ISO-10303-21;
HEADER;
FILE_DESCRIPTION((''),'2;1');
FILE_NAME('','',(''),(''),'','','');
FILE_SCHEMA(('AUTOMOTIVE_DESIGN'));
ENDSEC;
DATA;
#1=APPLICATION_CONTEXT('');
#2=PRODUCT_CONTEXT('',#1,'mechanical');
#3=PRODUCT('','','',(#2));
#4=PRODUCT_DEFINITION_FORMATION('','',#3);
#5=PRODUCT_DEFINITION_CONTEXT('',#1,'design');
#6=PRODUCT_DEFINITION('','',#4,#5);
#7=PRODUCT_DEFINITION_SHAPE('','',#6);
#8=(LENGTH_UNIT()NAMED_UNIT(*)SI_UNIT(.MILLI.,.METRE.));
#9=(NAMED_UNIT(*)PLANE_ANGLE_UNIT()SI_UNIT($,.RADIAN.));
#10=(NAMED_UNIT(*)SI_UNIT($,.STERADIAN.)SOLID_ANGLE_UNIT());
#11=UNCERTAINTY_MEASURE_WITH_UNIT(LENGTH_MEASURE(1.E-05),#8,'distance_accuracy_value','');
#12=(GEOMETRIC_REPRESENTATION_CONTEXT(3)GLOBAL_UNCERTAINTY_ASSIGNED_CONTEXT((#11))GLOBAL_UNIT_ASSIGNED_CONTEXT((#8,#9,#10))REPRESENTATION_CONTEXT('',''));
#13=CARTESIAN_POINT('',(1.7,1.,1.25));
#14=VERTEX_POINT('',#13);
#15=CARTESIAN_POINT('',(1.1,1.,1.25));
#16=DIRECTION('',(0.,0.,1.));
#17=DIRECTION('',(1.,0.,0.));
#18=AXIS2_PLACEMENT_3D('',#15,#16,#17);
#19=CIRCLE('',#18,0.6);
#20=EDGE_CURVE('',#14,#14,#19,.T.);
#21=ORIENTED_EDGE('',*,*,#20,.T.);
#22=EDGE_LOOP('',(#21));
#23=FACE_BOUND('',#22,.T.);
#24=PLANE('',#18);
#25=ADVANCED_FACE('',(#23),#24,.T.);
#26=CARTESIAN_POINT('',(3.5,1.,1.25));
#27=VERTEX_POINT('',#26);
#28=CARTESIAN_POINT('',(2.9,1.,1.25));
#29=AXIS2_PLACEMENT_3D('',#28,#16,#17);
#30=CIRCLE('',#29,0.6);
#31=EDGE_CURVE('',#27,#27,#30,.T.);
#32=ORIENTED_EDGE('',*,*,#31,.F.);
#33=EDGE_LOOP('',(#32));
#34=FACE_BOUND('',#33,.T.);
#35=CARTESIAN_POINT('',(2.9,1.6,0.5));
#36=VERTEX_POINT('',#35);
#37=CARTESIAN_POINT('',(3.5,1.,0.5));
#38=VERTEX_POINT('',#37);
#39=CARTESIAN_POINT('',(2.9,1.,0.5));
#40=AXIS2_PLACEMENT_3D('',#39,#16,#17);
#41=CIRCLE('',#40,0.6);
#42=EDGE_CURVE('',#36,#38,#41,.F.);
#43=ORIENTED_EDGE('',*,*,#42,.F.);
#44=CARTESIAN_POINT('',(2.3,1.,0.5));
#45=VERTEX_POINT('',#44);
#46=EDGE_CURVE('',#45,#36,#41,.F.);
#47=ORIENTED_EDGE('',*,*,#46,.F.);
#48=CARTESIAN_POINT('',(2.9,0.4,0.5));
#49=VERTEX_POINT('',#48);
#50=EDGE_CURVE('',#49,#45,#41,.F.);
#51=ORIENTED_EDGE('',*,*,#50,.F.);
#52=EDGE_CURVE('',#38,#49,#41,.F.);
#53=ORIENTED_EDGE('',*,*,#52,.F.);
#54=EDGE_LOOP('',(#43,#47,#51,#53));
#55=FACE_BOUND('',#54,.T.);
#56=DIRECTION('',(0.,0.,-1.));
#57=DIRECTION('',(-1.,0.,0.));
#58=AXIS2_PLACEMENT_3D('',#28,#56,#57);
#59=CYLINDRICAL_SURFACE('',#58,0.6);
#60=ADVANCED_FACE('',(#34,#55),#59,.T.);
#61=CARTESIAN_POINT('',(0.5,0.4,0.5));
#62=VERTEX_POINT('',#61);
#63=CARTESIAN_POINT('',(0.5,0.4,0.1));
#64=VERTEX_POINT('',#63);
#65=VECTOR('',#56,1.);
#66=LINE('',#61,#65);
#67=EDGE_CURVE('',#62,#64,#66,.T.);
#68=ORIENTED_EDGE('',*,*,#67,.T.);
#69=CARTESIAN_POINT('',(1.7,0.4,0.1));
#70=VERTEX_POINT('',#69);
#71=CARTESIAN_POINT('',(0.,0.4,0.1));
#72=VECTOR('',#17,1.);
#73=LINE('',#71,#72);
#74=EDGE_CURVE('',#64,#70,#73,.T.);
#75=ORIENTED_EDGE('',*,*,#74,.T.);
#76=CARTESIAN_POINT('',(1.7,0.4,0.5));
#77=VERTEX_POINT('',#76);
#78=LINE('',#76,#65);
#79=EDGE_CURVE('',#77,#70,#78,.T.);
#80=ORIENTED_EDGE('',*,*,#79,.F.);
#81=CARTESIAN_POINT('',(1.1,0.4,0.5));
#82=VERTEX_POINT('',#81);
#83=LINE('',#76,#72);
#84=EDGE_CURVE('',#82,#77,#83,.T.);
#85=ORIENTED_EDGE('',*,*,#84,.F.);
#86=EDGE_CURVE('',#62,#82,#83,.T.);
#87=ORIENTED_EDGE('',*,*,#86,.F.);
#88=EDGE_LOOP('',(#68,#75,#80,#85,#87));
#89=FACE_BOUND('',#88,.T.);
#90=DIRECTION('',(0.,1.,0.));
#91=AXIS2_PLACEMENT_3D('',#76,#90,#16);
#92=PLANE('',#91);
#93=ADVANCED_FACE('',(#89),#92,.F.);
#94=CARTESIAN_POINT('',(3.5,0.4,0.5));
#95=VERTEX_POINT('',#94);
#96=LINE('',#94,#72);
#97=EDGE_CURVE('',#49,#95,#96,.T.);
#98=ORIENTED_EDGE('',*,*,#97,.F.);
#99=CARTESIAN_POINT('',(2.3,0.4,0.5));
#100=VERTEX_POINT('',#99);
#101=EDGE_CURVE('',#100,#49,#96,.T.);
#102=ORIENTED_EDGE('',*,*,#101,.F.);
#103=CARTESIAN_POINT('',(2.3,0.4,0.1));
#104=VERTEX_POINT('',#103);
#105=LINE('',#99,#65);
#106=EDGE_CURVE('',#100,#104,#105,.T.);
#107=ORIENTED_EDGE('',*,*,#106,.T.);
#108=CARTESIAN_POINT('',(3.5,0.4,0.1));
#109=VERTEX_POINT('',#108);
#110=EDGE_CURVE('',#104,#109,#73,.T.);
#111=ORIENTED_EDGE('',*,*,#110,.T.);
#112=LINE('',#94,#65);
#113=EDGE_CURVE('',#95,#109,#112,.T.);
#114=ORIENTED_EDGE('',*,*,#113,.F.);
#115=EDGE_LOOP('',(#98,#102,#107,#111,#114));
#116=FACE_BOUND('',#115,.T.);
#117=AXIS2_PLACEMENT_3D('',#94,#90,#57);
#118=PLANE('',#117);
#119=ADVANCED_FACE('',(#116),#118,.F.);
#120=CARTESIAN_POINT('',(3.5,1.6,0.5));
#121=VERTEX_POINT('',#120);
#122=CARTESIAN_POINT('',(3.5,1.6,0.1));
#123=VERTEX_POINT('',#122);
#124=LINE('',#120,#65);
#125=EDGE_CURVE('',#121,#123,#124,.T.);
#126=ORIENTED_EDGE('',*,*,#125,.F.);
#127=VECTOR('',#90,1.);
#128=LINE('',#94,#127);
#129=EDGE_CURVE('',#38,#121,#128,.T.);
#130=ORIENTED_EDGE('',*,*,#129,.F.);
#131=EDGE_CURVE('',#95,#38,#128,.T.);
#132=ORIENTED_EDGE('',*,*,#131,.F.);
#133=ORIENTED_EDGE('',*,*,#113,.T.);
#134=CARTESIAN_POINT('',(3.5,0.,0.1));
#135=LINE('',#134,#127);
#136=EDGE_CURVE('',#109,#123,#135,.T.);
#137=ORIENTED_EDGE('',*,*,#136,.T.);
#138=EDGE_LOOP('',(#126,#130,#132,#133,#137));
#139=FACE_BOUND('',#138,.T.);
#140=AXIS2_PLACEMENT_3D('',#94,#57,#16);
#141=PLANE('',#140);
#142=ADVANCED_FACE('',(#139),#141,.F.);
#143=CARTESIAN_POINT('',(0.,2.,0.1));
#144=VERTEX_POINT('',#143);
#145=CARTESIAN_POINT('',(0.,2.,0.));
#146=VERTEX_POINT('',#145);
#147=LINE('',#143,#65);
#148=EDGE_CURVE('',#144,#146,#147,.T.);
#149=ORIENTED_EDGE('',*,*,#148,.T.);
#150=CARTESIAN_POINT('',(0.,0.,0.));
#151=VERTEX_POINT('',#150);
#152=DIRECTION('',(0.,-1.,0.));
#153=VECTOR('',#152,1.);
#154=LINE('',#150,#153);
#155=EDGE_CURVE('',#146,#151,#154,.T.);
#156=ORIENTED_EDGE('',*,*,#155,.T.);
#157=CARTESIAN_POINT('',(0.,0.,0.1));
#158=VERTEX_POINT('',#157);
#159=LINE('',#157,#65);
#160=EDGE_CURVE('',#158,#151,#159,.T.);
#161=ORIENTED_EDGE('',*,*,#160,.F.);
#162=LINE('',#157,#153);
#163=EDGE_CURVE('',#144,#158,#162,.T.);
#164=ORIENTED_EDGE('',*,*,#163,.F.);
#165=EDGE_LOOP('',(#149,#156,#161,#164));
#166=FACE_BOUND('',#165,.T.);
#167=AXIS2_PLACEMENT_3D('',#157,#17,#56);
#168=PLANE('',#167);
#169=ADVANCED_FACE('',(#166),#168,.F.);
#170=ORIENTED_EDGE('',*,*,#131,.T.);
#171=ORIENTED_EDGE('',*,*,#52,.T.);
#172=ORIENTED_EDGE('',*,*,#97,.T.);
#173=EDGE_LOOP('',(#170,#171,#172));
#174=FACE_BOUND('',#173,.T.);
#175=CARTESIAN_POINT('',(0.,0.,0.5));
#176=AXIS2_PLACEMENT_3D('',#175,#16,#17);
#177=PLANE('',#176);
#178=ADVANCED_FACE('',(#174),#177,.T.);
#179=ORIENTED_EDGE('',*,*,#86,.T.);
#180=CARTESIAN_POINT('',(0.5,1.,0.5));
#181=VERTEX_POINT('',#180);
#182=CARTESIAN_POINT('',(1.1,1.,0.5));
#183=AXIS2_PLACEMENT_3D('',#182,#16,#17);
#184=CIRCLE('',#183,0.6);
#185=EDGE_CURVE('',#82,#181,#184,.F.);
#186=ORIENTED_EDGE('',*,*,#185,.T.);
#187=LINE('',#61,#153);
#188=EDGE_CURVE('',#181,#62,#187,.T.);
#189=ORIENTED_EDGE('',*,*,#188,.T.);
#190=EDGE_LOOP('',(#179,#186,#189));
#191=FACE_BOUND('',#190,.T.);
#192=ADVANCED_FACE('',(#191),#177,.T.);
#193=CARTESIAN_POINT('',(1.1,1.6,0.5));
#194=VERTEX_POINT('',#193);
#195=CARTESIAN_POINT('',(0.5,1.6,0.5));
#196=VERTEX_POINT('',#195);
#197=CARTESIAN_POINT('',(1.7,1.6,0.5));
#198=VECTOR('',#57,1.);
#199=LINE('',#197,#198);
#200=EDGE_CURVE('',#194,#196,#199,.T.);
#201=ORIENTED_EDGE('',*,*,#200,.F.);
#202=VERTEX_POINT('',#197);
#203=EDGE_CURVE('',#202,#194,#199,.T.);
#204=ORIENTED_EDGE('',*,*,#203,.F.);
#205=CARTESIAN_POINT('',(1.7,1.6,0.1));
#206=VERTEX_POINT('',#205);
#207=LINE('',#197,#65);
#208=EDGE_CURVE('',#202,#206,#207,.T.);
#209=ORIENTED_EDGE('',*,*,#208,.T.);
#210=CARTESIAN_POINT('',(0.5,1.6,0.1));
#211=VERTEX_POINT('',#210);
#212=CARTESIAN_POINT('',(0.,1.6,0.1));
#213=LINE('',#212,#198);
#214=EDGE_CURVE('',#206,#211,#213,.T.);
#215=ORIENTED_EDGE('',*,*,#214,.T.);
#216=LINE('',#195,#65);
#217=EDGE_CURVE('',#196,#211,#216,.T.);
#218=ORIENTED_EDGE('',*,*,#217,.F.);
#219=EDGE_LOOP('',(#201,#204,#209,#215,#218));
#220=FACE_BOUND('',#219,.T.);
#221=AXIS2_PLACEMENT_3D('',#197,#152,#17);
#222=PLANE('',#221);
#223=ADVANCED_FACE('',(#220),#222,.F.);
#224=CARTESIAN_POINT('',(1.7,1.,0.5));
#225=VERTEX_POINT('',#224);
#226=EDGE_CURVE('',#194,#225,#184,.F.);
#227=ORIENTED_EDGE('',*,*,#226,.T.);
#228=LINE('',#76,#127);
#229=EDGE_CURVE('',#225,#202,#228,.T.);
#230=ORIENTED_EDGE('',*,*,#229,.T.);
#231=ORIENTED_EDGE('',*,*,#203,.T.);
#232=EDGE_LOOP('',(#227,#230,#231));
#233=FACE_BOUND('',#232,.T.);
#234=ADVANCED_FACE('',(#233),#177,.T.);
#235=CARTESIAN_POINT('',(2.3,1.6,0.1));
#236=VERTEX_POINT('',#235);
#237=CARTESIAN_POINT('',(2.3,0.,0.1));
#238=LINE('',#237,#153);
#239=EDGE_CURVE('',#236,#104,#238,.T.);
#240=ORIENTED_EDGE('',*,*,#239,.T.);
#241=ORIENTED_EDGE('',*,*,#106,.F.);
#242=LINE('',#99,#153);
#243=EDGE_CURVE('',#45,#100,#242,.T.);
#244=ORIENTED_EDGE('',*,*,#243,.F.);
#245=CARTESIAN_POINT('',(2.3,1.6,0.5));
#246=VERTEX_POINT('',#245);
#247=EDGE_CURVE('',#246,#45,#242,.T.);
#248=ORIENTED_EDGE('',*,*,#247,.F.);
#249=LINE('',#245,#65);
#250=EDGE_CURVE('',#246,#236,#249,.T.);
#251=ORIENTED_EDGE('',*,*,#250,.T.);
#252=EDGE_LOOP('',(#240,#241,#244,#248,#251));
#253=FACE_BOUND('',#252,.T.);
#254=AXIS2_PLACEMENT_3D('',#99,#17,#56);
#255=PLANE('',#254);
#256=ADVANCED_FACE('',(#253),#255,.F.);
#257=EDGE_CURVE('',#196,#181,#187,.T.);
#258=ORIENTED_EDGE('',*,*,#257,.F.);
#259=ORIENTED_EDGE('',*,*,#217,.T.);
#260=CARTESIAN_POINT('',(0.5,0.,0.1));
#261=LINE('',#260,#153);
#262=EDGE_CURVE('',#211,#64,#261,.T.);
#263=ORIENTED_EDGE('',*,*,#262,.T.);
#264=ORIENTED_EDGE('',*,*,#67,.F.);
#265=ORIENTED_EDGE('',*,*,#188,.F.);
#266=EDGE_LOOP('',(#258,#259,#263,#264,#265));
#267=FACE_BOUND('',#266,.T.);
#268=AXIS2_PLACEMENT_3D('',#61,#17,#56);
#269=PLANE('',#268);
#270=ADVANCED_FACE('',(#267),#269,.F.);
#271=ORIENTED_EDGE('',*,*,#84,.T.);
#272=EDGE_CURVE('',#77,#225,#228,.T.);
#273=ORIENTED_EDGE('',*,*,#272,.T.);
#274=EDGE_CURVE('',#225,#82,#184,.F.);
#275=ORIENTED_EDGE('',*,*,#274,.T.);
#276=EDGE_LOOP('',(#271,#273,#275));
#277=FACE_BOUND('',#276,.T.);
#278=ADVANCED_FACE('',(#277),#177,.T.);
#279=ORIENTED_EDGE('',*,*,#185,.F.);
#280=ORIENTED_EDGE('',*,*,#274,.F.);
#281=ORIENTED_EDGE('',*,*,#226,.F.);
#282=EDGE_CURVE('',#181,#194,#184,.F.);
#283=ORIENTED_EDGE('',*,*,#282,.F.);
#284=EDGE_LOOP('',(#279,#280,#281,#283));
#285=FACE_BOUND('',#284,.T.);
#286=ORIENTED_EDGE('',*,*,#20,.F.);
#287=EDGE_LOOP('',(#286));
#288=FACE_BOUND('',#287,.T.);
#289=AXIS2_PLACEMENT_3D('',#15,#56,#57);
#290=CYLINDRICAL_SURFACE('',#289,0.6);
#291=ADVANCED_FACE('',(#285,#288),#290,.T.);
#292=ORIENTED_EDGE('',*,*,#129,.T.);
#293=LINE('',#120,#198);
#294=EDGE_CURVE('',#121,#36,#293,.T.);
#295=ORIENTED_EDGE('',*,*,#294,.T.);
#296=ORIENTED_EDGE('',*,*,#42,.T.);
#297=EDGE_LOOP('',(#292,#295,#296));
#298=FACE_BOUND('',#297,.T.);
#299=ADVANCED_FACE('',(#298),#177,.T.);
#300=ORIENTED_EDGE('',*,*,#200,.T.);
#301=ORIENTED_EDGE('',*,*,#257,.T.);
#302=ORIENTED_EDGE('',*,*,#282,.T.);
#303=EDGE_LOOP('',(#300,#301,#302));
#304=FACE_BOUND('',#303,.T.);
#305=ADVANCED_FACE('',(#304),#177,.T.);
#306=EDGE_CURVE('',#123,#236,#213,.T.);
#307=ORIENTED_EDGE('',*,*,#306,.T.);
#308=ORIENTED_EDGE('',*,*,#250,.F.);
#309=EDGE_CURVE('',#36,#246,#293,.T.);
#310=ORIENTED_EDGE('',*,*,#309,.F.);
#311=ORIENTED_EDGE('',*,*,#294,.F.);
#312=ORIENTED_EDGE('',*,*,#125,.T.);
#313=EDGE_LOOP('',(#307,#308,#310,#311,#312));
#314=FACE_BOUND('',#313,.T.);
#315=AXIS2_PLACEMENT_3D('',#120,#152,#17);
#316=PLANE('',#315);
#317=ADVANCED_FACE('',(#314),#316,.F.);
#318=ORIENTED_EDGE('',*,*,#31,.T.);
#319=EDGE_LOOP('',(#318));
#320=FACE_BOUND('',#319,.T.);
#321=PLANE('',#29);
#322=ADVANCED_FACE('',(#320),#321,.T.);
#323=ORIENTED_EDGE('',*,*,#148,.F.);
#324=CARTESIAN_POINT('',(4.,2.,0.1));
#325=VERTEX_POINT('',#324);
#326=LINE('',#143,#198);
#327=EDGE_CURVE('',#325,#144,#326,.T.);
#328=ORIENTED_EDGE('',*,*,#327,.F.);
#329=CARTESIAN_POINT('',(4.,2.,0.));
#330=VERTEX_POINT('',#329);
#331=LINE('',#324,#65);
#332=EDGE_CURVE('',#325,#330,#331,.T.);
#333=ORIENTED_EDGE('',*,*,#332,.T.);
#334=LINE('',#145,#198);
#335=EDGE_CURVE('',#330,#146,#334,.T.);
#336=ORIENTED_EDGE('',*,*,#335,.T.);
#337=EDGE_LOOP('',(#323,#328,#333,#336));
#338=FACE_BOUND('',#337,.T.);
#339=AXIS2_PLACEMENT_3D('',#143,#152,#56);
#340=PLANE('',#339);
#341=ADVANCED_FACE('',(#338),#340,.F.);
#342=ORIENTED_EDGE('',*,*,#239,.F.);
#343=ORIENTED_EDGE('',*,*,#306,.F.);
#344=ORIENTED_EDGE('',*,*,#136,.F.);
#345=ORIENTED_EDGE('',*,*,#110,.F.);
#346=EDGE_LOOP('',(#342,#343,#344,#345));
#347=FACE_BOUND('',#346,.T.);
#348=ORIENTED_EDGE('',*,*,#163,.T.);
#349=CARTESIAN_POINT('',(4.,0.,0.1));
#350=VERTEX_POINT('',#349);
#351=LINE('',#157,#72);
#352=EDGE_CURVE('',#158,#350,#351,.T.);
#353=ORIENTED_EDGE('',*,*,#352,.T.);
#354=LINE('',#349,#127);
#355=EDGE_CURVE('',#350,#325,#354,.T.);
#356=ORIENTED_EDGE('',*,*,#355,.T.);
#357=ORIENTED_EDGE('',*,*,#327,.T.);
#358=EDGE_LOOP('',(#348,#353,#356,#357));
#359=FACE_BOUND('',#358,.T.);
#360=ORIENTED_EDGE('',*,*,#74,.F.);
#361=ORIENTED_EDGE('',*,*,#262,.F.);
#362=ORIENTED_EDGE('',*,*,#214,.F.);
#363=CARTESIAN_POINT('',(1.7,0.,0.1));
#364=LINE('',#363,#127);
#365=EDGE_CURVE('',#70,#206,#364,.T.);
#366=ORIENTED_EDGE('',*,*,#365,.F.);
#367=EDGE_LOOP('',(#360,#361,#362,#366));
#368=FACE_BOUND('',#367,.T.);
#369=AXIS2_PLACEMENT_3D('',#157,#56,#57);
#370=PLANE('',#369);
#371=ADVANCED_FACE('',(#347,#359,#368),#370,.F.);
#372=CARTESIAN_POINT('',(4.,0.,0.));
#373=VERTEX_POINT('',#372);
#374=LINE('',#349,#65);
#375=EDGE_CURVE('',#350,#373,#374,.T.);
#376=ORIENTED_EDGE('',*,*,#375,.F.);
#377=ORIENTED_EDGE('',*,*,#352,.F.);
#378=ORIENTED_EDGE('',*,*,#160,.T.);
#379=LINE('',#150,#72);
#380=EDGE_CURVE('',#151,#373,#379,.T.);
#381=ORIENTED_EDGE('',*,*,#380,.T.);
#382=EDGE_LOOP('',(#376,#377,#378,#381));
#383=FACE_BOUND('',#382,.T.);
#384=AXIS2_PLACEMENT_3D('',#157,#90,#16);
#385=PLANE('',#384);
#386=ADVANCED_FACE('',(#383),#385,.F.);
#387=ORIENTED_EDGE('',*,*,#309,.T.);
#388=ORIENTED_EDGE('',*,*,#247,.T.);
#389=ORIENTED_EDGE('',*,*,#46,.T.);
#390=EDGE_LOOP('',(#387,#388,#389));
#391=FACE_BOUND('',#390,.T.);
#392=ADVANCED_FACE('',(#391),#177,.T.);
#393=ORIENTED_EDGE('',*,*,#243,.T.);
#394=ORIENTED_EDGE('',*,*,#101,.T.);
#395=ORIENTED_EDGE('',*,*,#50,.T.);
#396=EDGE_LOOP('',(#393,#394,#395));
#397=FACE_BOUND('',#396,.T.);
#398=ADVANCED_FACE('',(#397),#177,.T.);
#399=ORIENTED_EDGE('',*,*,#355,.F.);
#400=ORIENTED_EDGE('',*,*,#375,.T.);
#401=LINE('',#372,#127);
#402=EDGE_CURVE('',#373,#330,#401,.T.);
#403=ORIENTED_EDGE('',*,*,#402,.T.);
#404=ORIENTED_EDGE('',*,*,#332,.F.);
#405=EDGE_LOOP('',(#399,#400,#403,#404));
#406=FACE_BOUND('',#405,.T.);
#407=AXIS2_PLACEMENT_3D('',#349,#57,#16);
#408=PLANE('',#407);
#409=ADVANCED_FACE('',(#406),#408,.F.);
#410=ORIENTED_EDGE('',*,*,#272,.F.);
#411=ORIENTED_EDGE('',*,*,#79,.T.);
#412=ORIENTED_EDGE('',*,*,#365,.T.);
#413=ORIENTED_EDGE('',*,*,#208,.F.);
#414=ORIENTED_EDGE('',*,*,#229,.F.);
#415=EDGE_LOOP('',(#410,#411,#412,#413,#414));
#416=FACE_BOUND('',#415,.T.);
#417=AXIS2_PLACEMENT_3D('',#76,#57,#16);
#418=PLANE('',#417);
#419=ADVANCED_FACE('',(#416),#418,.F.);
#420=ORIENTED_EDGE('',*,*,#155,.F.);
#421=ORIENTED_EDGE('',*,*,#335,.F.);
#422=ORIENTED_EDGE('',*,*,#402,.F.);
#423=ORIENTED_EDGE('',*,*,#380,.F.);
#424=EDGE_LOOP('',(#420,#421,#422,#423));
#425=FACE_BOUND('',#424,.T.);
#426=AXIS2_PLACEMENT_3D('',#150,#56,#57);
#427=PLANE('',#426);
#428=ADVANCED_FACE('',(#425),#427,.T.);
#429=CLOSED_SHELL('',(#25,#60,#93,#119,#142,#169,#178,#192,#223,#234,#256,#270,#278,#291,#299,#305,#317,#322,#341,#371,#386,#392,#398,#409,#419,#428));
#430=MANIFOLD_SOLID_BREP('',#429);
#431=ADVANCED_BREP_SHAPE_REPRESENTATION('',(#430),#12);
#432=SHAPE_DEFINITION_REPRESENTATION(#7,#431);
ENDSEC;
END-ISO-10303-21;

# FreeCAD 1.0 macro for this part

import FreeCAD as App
import Part
import Sketcher
from FreeCAD import Vector
Q = App.Units.Quantity

doc = App.newDocument("Part")
body = doc.addObject("PartDesign::Body", "Body")

sketch1 = body.newObject("Sketcher::SketchObject", "Sketch")
sketch1.AttachmentSupport = (doc.getObject("XY_Plane"), [""])
sketch1.MapMode = "FlatFace"
sketch1.addGeometry(Part.LineSegment(Vector(0, 2, 0), Vector(0, 0, 0)), False)
sketch1.addGeometry(Part.LineSegment(Vector(0, 0, 0), Vector(4, 0, 0)), False)
sketch1.addGeometry(Part.LineSegment(Vector(4, 0, 0), Vector(4, 2, 0)), False)
sketch1.addGeometry(Part.LineSegment(Vector(4, 2, 0), Vector(0, 2, 0)), False)
sketch1.addConstraint(Sketcher.Constraint("Coincident", 0, 2, 1, 1))
sketch1.addConstraint(Sketcher.Constraint("Coincident", 1, 2, 2, 1))
sketch1.addConstraint(Sketcher.Constraint("Coincident", 2, 2, 3, 1))
sketch1.addConstraint(Sketcher.Constraint("Coincident", 3, 2, 0, 1))
sketch1.addConstraint(Sketcher.Constraint("Vertical", 0))
sketch1.addConstraint(Sketcher.Constraint("Horizontal", 1))
sketch1.addConstraint(Sketcher.Constraint("Vertical", 2))
sketch1.addConstraint(Sketcher.Constraint("Horizontal", 3))
sketch1.addConstraint(Sketcher.Constraint("Coincident", 0, 2, -1, 1))
sketch1.addConstraint(Sketcher.Constraint("DistanceX", 1, 1, 1, 2, Q("4 mm")))
sketch1.addConstraint(Sketcher.Constraint("DistanceY", 0, 2, 0, 1, Q("2 mm")))
pad1 = body.newObject("PartDesign::Pad", "Pad")
pad1.Profile = sketch1
pad1.Length = 0.1

sketch2 = body.newObject("Sketcher::SketchObject", "Sketch001")
sketch2.AttachmentSupport = (doc.getObject("XY_Plane"), [""])
sketch2.MapMode = "FlatFace"
sketch2.addGeometry(Part.LineSegment(Vector(0.5, 1.6, 0), Vector(0.5, 0.4, 0)), False)
sketch2.addGeometry(Part.LineSegment(Vector(0.5, 0.4, 0), Vector(1.7, 0.4, 0)), False)
sketch2.addGeometry(Part.LineSegment(Vector(1.7, 0.4, 0), Vector(1.7, 1.6, 0)), False)
sketch2.addGeometry(Part.LineSegment(Vector(1.7, 1.6, 0), Vector(0.5, 1.6, 0)), False)
sketch2.addGeometry(Part.LineSegment(Vector(2.3, 1.6, 0), Vector(2.3, 0.4, 0)), False)
sketch2.addGeometry(Part.LineSegment(Vector(2.3, 0.4, 0), Vector(3.5, 0.4, 0)), False)
sketch2.addGeometry(Part.LineSegment(Vector(3.5, 0.4, 0), Vector(3.5, 1.6, 0)), False)
sketch2.addGeometry(Part.LineSegment(Vector(3.5, 1.6, 0), Vector(2.3, 1.6, 0)), False)
sketch2.addConstraint(Sketcher.Constraint("Coincident", 0, 2, 1, 1))
sketch2.addConstraint(Sketcher.Constraint("Coincident", 1, 2, 2, 1))
sketch2.addConstraint(Sketcher.Constraint("Coincident", 2, 2, 3, 1))
sketch2.addConstraint(Sketcher.Constraint("Coincident", 3, 2, 0, 1))
sketch2.addConstraint(Sketcher.Constraint("Coincident", 4, 2, 5, 1))
sketch2.addConstraint(Sketcher.Constraint("Coincident", 5, 2, 6, 1))
sketch2.addConstraint(Sketcher.Constraint("Coincident", 6, 2, 7, 1))
sketch2.addConstraint(Sketcher.Constraint("Coincident", 7, 2, 4, 1))
sketch2.addConstraint(Sketcher.Constraint("Vertical", 0))
sketch2.addConstraint(Sketcher.Constraint("Horizontal", 1))
sketch2.addConstraint(Sketcher.Constraint("Vertical", 2))
sketch2.addConstraint(Sketcher.Constraint("Horizontal", 3))
sketch2.addConstraint(Sketcher.Constraint("Vertical", 4))
sketch2.addConstraint(Sketcher.Constraint("Horizontal", 5))
sketch2.addConstraint(Sketcher.Constraint("Vertical", 6))
sketch2.addConstraint(Sketcher.Constraint("Horizontal", 7))
sketch2.addConstraint(Sketcher.Constraint("Horizontal", 1, 2, 4, 2))
sketch2.addConstraint(Sketcher.Constraint("Horizontal", 3, 2, 6, 2))
sketch2.addConstraint(Sketcher.Constraint("Equal", 3, 5))
sketch2.addConstraint(Sketcher.Constraint("Equal", 7, 0))
sketch2.addConstraint(Sketcher.Constraint("DistanceX", 1, 1, 1, 2, Q("1.2 mm")))
sketch2.addConstraint(Sketcher.Constraint("DistanceX", 0, 2, 5, 2, Q("3 mm")))
sketch2.addConstraint(Sketcher.Constraint("DistanceX", -1, 1, 0, 2, Q("0.5 mm")))
sketch2.addConstraint(Sketcher.Constraint("DistanceY", -1, 1, 0, 2, Q("0.4 mm")))
pad2 = body.newObject("PartDesign::Pad", "Pad001")
pad2.Profile = sketch2
pad2.Length = 0.5

sketch3 = body.newObject("Sketcher::SketchObject", "Sketch002")
sketch3.AttachmentSupport = (doc.getObject("XY_Plane"), [""])
sketch3.MapMode = "FlatFace"
sketch3.addGeometry(Part.Circle(Vector(1.1, 1, 0), Vector(0, 0, 1), 0.6), False)
sketch3.addGeometry(Part.Circle(Vector(2.9, 1, 0), Vector(0, 0, 1), 0.6), False)
sketch3.addConstraint(Sketcher.Constraint("Equal", 0, 1))
sketch3.addConstraint(Sketcher.Constraint("Horizontal", 0, 3, 1, 3))
sketch3.addConstraint(Sketcher.Constraint("Diameter", 0, Q("1.2 mm")))
sketch3.addConstraint(Sketcher.Constraint("DistanceY", -1, 1, 0, 3, Q("1 mm")))
sketch3.addConstraint(Sketcher.Constraint("DistanceX", -1, 1, 0, 3, Q("1.1 mm")))
sketch3.addConstraint(Sketcher.Constraint("DistanceX", -1, 1, 1, 3, Q("2.9 mm")))
pad3 = body.newObject("PartDesign::Pad", "Pad002")
pad3.Profile = sketch3
pad3.Length = 1.25

doc.recompute()
